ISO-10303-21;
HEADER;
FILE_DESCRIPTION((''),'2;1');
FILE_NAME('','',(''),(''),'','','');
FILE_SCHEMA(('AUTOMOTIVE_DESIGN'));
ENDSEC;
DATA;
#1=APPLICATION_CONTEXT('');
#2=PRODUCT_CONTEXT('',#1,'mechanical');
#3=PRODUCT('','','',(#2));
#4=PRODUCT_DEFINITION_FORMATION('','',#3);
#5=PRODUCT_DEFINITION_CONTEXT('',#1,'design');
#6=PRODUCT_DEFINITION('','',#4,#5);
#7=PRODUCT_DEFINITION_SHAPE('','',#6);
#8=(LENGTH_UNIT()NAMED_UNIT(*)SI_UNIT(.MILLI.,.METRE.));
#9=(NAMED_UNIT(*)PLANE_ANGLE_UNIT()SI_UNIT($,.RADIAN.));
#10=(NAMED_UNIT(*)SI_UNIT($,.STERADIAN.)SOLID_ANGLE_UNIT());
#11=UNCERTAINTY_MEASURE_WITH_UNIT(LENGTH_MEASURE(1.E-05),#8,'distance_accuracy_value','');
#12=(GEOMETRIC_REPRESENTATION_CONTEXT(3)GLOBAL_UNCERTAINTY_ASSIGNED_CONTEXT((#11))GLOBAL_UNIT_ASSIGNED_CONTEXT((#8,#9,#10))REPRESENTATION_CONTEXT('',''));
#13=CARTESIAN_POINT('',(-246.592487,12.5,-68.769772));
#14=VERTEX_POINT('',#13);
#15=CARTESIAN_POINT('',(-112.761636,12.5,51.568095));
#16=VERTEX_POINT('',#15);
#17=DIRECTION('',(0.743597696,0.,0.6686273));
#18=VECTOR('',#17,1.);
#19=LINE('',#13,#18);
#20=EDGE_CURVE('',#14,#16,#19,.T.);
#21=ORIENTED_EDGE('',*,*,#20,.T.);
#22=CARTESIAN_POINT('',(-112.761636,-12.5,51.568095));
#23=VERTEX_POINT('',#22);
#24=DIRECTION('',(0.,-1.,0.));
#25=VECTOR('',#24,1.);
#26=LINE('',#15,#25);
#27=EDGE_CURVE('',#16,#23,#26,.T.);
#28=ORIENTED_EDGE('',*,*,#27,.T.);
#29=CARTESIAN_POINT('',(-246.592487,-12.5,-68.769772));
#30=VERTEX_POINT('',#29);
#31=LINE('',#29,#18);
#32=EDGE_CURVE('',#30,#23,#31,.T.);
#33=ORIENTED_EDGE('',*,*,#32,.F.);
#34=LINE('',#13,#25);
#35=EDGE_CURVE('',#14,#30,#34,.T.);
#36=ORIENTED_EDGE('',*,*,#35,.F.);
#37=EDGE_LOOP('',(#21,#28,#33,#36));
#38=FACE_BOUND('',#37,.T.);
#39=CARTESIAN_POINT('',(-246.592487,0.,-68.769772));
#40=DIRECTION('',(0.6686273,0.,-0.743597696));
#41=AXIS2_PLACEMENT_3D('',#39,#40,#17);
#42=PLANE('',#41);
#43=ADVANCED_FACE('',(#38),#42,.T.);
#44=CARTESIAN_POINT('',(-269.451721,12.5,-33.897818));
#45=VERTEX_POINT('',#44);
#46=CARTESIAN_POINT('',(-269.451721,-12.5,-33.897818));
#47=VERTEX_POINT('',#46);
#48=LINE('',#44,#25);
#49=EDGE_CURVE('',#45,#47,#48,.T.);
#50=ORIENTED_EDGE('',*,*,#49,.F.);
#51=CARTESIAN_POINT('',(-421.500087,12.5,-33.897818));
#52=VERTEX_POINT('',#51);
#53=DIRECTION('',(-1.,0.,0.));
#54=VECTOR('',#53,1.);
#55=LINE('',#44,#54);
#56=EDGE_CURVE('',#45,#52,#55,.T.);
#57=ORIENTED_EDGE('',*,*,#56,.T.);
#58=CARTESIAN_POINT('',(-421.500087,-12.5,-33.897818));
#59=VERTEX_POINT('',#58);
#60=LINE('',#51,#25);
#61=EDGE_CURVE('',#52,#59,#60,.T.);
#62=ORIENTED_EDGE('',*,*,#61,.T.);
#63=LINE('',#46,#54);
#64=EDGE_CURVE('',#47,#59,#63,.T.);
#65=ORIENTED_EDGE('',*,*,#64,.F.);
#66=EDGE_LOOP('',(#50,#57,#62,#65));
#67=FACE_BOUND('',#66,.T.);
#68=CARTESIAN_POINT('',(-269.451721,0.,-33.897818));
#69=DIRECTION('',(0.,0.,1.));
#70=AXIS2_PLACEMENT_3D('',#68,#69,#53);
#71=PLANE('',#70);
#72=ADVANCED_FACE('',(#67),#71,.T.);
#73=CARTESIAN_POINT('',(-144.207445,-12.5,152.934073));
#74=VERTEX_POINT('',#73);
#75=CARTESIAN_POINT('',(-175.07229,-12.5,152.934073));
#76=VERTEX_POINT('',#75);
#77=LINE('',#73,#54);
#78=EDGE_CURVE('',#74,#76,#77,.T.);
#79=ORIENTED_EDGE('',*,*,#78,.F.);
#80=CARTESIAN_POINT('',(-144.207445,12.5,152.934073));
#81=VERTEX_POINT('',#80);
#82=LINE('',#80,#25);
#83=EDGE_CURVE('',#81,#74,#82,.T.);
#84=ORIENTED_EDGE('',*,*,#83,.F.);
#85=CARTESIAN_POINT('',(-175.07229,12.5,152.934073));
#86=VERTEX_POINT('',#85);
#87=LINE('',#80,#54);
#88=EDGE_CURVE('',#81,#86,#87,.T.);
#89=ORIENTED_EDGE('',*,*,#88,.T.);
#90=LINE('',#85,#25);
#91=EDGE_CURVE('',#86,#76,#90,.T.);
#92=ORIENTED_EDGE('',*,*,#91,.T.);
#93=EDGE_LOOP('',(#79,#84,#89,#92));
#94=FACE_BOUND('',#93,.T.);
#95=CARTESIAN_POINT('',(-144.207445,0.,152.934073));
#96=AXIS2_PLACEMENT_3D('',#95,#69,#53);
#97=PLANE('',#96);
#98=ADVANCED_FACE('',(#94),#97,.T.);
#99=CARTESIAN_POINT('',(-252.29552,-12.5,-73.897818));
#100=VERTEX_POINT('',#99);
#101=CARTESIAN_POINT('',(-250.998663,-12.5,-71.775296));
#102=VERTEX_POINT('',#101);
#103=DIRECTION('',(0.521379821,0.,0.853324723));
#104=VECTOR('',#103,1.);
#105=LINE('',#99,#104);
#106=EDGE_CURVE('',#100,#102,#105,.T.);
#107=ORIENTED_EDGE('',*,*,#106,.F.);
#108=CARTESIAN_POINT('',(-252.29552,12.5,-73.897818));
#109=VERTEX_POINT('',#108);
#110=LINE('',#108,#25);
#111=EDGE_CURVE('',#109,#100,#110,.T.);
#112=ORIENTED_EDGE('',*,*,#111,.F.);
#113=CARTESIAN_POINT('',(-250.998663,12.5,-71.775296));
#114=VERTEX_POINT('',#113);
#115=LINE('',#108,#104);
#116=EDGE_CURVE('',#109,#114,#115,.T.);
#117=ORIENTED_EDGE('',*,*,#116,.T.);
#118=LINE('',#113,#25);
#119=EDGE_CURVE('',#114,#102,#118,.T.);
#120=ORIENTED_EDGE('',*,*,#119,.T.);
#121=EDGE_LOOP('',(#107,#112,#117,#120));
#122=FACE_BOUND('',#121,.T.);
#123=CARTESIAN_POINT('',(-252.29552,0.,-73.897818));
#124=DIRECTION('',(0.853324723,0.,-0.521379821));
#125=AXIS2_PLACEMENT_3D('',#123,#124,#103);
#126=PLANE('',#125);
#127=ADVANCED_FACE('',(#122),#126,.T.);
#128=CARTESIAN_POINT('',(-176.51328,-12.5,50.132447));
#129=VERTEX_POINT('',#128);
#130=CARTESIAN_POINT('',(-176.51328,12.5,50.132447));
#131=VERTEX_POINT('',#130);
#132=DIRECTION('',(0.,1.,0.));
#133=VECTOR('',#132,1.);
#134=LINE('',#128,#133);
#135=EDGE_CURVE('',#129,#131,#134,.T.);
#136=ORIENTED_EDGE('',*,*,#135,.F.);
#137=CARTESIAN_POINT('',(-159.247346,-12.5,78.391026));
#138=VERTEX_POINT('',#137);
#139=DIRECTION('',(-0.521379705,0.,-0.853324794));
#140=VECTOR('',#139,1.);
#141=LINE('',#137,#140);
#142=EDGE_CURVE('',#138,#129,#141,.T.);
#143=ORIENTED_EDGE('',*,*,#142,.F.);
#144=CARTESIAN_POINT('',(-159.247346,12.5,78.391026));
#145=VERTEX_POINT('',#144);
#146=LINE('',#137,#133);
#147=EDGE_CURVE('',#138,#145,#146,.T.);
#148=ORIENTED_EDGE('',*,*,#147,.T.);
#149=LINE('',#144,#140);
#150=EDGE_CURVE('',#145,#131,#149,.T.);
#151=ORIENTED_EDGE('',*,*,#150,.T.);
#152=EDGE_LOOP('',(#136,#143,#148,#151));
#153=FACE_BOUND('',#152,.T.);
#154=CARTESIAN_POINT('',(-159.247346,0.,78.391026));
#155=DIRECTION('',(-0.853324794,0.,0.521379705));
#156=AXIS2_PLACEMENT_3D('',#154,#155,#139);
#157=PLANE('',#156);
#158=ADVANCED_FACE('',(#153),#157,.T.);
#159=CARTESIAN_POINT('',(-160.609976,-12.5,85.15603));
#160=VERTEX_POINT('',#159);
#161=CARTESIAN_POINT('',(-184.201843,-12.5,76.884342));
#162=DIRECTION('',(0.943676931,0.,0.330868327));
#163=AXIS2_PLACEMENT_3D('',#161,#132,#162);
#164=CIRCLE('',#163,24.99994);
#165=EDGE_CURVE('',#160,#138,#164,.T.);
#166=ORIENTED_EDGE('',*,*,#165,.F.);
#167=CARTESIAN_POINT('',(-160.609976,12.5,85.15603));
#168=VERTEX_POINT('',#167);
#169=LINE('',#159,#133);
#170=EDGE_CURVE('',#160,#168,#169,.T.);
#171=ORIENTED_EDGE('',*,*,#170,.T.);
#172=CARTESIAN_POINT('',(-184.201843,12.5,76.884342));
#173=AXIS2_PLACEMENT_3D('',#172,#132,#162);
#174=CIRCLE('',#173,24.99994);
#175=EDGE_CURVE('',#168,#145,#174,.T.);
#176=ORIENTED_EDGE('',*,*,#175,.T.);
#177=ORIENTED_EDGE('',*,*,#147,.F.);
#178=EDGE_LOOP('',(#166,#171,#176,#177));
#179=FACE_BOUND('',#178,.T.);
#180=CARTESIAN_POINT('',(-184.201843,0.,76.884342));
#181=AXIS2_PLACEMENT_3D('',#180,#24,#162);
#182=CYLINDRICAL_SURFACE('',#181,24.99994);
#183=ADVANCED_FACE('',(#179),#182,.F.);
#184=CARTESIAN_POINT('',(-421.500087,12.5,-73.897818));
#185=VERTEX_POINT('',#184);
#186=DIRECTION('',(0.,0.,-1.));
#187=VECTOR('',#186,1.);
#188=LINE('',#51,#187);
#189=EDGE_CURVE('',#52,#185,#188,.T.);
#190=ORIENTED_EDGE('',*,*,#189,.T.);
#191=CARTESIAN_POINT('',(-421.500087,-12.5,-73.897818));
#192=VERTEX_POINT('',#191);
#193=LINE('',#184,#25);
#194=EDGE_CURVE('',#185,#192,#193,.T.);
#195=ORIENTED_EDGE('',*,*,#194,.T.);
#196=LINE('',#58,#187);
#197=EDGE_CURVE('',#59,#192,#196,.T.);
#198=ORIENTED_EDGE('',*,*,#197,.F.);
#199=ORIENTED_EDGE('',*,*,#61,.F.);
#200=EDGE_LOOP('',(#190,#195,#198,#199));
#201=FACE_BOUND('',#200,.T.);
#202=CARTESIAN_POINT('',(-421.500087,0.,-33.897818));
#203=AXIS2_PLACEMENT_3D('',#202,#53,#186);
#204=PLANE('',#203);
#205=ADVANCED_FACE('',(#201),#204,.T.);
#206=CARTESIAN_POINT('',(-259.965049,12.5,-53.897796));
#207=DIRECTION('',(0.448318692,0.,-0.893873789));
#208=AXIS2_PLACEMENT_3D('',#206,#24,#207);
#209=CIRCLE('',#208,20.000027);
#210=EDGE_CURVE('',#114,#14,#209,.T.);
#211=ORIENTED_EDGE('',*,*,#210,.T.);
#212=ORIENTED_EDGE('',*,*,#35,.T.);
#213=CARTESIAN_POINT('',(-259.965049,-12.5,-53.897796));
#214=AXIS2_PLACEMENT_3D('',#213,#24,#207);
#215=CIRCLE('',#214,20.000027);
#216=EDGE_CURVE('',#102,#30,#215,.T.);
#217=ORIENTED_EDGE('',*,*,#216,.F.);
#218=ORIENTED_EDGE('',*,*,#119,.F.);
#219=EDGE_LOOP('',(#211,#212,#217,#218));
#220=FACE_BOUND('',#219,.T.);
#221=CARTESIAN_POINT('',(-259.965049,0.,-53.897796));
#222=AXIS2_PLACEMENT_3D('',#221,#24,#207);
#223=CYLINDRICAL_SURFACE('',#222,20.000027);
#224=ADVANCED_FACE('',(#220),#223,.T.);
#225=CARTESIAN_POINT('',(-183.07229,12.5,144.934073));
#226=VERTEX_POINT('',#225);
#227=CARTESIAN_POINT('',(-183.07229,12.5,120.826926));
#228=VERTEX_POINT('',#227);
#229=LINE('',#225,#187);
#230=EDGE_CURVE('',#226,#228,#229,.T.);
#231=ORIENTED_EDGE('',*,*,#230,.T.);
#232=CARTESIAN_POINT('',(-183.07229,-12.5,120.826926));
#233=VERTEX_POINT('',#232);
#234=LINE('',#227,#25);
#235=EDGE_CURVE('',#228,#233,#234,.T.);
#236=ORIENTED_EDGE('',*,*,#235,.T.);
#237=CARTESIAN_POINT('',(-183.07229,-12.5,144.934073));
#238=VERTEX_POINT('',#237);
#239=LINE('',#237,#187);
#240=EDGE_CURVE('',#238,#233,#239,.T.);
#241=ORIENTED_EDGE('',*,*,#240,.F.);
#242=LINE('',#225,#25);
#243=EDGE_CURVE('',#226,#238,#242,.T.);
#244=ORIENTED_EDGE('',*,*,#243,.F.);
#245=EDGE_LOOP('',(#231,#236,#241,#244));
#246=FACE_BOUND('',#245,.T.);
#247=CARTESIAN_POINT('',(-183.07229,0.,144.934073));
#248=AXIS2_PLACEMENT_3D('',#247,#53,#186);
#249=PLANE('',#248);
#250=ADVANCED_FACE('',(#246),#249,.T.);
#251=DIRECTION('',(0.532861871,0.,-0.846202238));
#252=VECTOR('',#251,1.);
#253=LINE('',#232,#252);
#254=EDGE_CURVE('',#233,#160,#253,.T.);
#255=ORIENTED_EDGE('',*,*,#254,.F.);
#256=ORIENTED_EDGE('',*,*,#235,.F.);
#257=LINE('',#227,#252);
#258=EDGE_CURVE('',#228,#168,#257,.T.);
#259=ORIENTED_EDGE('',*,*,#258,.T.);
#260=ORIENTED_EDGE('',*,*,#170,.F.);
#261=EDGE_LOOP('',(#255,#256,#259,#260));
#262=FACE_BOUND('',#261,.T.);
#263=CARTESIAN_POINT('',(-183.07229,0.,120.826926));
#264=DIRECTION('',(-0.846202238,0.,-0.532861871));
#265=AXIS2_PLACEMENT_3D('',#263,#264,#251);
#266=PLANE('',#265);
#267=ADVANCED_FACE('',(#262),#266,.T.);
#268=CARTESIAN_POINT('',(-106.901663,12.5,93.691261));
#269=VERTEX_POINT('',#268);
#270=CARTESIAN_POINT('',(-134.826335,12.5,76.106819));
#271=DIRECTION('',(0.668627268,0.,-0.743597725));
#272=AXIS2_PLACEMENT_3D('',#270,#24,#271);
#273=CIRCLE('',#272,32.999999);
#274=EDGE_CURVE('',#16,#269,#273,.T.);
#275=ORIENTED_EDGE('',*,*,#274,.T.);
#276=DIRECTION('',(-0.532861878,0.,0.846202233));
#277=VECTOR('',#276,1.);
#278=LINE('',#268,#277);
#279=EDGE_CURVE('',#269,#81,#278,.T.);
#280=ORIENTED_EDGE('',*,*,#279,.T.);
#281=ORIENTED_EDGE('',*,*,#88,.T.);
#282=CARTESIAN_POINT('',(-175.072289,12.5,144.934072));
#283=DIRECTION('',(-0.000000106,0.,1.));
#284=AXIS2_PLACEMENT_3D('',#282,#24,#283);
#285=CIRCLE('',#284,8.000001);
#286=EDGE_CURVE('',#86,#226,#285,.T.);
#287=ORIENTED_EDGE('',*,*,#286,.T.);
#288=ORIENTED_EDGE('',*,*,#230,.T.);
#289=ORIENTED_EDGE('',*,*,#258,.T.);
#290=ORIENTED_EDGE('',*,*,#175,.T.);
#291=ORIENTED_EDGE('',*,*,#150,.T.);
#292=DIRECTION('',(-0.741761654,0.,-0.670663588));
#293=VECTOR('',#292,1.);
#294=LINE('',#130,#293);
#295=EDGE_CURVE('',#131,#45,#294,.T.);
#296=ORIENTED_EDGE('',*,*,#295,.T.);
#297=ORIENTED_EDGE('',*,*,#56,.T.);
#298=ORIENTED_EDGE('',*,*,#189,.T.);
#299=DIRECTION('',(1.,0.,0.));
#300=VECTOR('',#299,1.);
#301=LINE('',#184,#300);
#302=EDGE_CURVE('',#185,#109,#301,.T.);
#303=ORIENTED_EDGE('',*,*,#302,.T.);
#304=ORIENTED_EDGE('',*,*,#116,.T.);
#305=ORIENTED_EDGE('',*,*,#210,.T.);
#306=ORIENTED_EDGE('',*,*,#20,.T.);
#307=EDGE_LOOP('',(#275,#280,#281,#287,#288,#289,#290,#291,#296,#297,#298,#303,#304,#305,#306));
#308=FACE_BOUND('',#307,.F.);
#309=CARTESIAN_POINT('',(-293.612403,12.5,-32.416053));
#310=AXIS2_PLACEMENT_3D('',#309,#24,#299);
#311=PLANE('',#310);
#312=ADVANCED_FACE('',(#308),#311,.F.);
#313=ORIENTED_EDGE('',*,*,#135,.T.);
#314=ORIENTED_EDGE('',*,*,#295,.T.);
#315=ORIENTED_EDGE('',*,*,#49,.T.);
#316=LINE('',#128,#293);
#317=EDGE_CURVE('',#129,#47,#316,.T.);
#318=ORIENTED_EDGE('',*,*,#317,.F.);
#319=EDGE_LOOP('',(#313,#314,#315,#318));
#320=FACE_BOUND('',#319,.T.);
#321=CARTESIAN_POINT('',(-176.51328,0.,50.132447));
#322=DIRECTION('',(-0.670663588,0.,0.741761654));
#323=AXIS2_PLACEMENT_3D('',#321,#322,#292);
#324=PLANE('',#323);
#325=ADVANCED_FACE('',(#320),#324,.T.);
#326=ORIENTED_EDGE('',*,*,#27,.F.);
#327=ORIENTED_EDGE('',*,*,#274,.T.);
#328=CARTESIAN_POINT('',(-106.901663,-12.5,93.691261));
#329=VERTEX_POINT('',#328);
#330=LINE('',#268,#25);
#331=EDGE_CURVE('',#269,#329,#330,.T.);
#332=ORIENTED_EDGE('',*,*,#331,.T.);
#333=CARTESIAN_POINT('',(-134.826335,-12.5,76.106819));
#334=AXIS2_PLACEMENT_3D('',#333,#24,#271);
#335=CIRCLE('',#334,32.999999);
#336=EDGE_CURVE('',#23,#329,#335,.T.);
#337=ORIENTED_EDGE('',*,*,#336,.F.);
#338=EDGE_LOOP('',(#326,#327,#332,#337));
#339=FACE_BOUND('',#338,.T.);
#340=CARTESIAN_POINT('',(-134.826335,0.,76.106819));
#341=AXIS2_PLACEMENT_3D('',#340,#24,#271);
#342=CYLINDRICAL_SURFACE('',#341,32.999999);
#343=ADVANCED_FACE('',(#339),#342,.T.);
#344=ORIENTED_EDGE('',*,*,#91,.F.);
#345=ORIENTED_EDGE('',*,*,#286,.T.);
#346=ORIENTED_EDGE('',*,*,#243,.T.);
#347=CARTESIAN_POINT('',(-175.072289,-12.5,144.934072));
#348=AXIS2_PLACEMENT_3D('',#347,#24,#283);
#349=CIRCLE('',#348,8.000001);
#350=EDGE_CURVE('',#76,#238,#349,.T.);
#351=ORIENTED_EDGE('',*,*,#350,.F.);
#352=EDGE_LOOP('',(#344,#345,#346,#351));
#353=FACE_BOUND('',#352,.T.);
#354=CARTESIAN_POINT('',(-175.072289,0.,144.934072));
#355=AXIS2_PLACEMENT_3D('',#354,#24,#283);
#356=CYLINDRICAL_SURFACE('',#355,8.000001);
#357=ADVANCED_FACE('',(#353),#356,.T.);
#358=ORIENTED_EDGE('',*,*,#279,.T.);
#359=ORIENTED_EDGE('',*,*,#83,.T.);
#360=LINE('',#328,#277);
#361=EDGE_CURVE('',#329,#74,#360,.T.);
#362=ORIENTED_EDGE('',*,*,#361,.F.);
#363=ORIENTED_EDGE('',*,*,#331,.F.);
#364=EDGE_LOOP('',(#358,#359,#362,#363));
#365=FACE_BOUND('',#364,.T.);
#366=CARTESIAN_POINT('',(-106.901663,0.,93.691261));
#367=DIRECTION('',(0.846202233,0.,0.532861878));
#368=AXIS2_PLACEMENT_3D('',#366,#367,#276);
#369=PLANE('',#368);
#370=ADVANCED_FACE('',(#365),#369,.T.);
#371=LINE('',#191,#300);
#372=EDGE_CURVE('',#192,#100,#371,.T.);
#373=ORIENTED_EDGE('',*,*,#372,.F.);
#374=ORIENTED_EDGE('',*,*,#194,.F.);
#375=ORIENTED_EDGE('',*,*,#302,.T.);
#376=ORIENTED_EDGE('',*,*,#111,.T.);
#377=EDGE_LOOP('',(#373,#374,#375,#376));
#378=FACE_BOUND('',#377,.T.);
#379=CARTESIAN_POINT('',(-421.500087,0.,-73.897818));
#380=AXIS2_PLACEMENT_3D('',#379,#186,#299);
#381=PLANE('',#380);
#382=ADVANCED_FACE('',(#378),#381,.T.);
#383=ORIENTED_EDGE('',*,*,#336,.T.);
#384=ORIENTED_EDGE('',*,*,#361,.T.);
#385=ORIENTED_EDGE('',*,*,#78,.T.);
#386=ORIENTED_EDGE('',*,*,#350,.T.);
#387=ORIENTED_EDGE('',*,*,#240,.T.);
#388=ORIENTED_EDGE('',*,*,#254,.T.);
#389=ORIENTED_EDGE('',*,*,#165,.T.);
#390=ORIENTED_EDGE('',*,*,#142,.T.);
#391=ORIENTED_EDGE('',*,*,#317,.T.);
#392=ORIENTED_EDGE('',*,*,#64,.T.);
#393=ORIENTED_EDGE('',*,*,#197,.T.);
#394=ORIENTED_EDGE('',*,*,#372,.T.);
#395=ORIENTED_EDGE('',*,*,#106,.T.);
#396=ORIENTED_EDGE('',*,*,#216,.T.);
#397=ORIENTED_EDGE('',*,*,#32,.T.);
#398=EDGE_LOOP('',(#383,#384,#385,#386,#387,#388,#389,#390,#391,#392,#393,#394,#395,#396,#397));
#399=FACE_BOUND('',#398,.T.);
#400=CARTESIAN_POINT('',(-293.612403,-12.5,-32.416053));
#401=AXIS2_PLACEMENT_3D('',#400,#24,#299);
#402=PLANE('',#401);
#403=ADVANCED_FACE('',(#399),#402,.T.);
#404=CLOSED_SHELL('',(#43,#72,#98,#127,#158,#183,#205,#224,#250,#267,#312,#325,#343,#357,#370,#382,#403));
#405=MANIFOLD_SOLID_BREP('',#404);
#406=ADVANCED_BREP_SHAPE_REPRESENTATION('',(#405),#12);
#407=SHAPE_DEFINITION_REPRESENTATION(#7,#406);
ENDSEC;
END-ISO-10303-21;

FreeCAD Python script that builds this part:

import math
import FreeCAD as App
import Part
import Sketcher

doc = App.newDocument("Part")
params = doc.addObject("Spreadsheet::Sheet", "Params")
for row, (alias, value) in enumerate([
    ("sketch1_radius", "32.999999 mm"),
    ("sketch1_radius2", "8.000001 mm"),
    ("sketch1_height", "40 mm"),
    ("pad1_length", "25 mm"),
], start=1):
    params.set(f"A{row}", alias)
    params.set(f"B{row}", "=" + value)
    params.setAlias(f"B{row}", alias)

body = doc.addObject("PartDesign::Body", "Body")

# Sketch on XZ plane
sketch1 = doc.addObject("Sketcher::SketchObject", "Sketch")
body.addObject(sketch1)
sketch1.AttachmentSupport = (doc.XZ_Plane, [""])
sketch1.MapMode = "FlatFace"
sketch1.addGeometry([
    Part.LineSegment(App.Vector(-176.51328, 50.132447, 0), App.Vector(-269.451721, -33.897818, 0)),  # 0
    Part.LineSegment(App.Vector(-269.451721, -33.897818, 0), App.Vector(-421.500087, -33.897818, 0)),  # 1
    Part.LineSegment(App.Vector(-421.500087, -33.897818, 0), App.Vector(-421.500087, -73.897818, 0)),  # 2
    Part.LineSegment(App.Vector(-421.500087, -73.897818, 0), App.Vector(-252.29552, -73.897818, 0)),  # 3
    Part.LineSegment(App.Vector(-252.29552, -73.897818, 0), App.Vector(-250.998663, -71.775296, 0)),  # 4
    Part.ArcOfCircle(Part.Circle(App.Vector(-259.965049, -53.897796, 0), App.Vector(0, 0, 1), 20.000027), math.radians(-63.364136), math.radians(-48.038801)),  # 5
    Part.LineSegment(App.Vector(-246.592487, -68.769772, 0), App.Vector(-112.761636, 51.568095, 0)),  # 6
    Part.ArcOfCircle(Part.Circle(App.Vector(-134.826335, 76.106819, 0), App.Vector(0, 0, 1), 32.999999), math.radians(-48.038795), math.radians(32.199027)),  # 7
    Part.LineSegment(App.Vector(-106.901663, 93.691261, 0), App.Vector(-144.207445, 152.934073, 0)),  # 8
    Part.LineSegment(App.Vector(-144.207445, 152.934073, 0), App.Vector(-175.07229, 152.934073, 0)),  # 9
    Part.ArcOfCircle(Part.Circle(App.Vector(-175.072289, 144.934072, 0), App.Vector(0, 0, 1), 8.000001), math.radians(90.000006), math.radians(179.999994)),  # 10
    Part.LineSegment(App.Vector(-183.07229, 144.934073, 0), App.Vector(-183.07229, 120.826926, 0)),  # 11
    Part.LineSegment(App.Vector(-183.07229, 120.826926, 0), App.Vector(-160.609976, 85.15603, 0)),  # 12
    Part.ArcOfCircle(Part.Circle(App.Vector(-184.201843, 76.884342, 0), App.Vector(0, 0, 1), 24.99994), math.radians(3.455168), math.radians(19.321488)),  # 13
    Part.LineSegment(App.Vector(-159.247346, 78.391026, 0), App.Vector(-176.51328, 50.132447, 0)),  # 14
], False)
sketch1.addConstraint([
    Sketcher.Constraint("Coincident", 0, 2, 1, 1),
    Sketcher.Constraint("Coincident", 1, 2, 2, 1),
    Sketcher.Constraint("Coincident", 2, 2, 3, 1),
    Sketcher.Constraint("Coincident", 3, 2, 4, 1),
    Sketcher.Constraint("Coincident", 4, 2, 5, 1),
    Sketcher.Constraint("Coincident", 5, 2, 6, 1),
    Sketcher.Constraint("Coincident", 6, 2, 7, 1),
    Sketcher.Constraint("Coincident", 7, 2, 8, 1),
    Sketcher.Constraint("Coincident", 8, 2, 9, 1),
    Sketcher.Constraint("Coincident", 9, 2, 10, 1),
    Sketcher.Constraint("Coincident", 10, 2, 11, 1),
    Sketcher.Constraint("Coincident", 11, 2, 12, 1),
    Sketcher.Constraint("Coincident", 12, 2, 13, 2),
    Sketcher.Constraint("Coincident", 13, 1, 14, 1),
    Sketcher.Constraint("Coincident", 14, 2, 0, 1),
    Sketcher.Constraint("Horizontal", 1),
    Sketcher.Constraint("Vertical", 2),
    Sketcher.Constraint("Horizontal", 3),
    Sketcher.Constraint("Horizontal", 9),
    Sketcher.Constraint("Vertical", 11),
    Sketcher.Constraint("Radius", 7, 32.999999),
    Sketcher.Constraint("Radius", 10, 8.000001),
    Sketcher.Constraint("DistanceY", 2, 2, 2, 1, 40.0),
    Sketcher.Constraint("DistanceX", 10, 2, 9, 2, 8.0),
    Sketcher.Constraint("DistanceY", 10, 2, 9, 2, 8.0),
    Sketcher.Constraint("Radius", 13, 24.99994),
    Sketcher.Constraint("Radius", 5, 20.000027),
    Sketcher.Constraint("DistanceX", 0, 2, 3, 2, 17.156201),
    Sketcher.Constraint("DistanceY", 4, 2, 5, 3, 17.8775),
    Sketcher.Constraint("DistanceX", 7, 3, 6, 2, 22.064699),
    Sketcher.Constraint("DistanceX", 13, 3, 8, 2, 39.994398),
    Sketcher.Constraint("DistanceY", 13, 1, 11, 2, 42.4359),
    Sketcher.Constraint("Distance", 0, 125.294211),
    Sketcher.Constraint("Distance", 8, 70.010229),
    Sketcher.Constraint("DistanceX", 1, 2, 1, 1, 152.048366),
    Sketcher.Constraint("DistanceX", 9, 2, 9, 1, 30.864845),
    Sketcher.Constraint("DistanceY", 11, 2, 11, 1, 24.107147),
    Sketcher.Constraint("DistanceX", 5, 3, -1, 1, 259.965049),
    Sketcher.Constraint("DistanceY", -1, 1, 7, 3, 76.106819),
    Sketcher.Constraint("DistanceX", 10, 3, -1, 1, 175.072289),
    Sketcher.Constraint("DistanceY", -1, 1, 13, 3, 76.884342),
    Sketcher.Constraint("DistanceX", 0, 2, -1, 1, 269.451721),
    Sketcher.Constraint("DistanceY", 2, 2, -1, 1, 73.897818),
    Sketcher.Constraint("DistanceY", -1, 1, 7, 2, 93.691261),
    Sketcher.Constraint("DistanceY", -1, 1, 12, 2, 85.15603),
    Sketcher.Constraint("DistanceX", 14, 2, -1, 1, 176.51328),
    Sketcher.Constraint("DistanceX", 13, 3, 7, 3, 49.375508),
    Sketcher.Constraint("DistanceX", 5, 2, 6, 2, 133.830851),
    Sketcher.Constraint("Distance", 4, 2.487356),
])
sketch1.setExpression("Constraints[20]", "Params.sketch1_radius")
sketch1.setExpression("Constraints[21]", "Params.sketch1_radius2")
sketch1.setExpression("Constraints[22]", "Params.sketch1_height")
pad1 = doc.addObject("PartDesign::Pad", "Pad")
body.addObject(pad1)
pad1.Profile = sketch1
pad1.setExpression("Length", "Params.pad1_length")
pad1.Midplane = True

doc.recompute()
